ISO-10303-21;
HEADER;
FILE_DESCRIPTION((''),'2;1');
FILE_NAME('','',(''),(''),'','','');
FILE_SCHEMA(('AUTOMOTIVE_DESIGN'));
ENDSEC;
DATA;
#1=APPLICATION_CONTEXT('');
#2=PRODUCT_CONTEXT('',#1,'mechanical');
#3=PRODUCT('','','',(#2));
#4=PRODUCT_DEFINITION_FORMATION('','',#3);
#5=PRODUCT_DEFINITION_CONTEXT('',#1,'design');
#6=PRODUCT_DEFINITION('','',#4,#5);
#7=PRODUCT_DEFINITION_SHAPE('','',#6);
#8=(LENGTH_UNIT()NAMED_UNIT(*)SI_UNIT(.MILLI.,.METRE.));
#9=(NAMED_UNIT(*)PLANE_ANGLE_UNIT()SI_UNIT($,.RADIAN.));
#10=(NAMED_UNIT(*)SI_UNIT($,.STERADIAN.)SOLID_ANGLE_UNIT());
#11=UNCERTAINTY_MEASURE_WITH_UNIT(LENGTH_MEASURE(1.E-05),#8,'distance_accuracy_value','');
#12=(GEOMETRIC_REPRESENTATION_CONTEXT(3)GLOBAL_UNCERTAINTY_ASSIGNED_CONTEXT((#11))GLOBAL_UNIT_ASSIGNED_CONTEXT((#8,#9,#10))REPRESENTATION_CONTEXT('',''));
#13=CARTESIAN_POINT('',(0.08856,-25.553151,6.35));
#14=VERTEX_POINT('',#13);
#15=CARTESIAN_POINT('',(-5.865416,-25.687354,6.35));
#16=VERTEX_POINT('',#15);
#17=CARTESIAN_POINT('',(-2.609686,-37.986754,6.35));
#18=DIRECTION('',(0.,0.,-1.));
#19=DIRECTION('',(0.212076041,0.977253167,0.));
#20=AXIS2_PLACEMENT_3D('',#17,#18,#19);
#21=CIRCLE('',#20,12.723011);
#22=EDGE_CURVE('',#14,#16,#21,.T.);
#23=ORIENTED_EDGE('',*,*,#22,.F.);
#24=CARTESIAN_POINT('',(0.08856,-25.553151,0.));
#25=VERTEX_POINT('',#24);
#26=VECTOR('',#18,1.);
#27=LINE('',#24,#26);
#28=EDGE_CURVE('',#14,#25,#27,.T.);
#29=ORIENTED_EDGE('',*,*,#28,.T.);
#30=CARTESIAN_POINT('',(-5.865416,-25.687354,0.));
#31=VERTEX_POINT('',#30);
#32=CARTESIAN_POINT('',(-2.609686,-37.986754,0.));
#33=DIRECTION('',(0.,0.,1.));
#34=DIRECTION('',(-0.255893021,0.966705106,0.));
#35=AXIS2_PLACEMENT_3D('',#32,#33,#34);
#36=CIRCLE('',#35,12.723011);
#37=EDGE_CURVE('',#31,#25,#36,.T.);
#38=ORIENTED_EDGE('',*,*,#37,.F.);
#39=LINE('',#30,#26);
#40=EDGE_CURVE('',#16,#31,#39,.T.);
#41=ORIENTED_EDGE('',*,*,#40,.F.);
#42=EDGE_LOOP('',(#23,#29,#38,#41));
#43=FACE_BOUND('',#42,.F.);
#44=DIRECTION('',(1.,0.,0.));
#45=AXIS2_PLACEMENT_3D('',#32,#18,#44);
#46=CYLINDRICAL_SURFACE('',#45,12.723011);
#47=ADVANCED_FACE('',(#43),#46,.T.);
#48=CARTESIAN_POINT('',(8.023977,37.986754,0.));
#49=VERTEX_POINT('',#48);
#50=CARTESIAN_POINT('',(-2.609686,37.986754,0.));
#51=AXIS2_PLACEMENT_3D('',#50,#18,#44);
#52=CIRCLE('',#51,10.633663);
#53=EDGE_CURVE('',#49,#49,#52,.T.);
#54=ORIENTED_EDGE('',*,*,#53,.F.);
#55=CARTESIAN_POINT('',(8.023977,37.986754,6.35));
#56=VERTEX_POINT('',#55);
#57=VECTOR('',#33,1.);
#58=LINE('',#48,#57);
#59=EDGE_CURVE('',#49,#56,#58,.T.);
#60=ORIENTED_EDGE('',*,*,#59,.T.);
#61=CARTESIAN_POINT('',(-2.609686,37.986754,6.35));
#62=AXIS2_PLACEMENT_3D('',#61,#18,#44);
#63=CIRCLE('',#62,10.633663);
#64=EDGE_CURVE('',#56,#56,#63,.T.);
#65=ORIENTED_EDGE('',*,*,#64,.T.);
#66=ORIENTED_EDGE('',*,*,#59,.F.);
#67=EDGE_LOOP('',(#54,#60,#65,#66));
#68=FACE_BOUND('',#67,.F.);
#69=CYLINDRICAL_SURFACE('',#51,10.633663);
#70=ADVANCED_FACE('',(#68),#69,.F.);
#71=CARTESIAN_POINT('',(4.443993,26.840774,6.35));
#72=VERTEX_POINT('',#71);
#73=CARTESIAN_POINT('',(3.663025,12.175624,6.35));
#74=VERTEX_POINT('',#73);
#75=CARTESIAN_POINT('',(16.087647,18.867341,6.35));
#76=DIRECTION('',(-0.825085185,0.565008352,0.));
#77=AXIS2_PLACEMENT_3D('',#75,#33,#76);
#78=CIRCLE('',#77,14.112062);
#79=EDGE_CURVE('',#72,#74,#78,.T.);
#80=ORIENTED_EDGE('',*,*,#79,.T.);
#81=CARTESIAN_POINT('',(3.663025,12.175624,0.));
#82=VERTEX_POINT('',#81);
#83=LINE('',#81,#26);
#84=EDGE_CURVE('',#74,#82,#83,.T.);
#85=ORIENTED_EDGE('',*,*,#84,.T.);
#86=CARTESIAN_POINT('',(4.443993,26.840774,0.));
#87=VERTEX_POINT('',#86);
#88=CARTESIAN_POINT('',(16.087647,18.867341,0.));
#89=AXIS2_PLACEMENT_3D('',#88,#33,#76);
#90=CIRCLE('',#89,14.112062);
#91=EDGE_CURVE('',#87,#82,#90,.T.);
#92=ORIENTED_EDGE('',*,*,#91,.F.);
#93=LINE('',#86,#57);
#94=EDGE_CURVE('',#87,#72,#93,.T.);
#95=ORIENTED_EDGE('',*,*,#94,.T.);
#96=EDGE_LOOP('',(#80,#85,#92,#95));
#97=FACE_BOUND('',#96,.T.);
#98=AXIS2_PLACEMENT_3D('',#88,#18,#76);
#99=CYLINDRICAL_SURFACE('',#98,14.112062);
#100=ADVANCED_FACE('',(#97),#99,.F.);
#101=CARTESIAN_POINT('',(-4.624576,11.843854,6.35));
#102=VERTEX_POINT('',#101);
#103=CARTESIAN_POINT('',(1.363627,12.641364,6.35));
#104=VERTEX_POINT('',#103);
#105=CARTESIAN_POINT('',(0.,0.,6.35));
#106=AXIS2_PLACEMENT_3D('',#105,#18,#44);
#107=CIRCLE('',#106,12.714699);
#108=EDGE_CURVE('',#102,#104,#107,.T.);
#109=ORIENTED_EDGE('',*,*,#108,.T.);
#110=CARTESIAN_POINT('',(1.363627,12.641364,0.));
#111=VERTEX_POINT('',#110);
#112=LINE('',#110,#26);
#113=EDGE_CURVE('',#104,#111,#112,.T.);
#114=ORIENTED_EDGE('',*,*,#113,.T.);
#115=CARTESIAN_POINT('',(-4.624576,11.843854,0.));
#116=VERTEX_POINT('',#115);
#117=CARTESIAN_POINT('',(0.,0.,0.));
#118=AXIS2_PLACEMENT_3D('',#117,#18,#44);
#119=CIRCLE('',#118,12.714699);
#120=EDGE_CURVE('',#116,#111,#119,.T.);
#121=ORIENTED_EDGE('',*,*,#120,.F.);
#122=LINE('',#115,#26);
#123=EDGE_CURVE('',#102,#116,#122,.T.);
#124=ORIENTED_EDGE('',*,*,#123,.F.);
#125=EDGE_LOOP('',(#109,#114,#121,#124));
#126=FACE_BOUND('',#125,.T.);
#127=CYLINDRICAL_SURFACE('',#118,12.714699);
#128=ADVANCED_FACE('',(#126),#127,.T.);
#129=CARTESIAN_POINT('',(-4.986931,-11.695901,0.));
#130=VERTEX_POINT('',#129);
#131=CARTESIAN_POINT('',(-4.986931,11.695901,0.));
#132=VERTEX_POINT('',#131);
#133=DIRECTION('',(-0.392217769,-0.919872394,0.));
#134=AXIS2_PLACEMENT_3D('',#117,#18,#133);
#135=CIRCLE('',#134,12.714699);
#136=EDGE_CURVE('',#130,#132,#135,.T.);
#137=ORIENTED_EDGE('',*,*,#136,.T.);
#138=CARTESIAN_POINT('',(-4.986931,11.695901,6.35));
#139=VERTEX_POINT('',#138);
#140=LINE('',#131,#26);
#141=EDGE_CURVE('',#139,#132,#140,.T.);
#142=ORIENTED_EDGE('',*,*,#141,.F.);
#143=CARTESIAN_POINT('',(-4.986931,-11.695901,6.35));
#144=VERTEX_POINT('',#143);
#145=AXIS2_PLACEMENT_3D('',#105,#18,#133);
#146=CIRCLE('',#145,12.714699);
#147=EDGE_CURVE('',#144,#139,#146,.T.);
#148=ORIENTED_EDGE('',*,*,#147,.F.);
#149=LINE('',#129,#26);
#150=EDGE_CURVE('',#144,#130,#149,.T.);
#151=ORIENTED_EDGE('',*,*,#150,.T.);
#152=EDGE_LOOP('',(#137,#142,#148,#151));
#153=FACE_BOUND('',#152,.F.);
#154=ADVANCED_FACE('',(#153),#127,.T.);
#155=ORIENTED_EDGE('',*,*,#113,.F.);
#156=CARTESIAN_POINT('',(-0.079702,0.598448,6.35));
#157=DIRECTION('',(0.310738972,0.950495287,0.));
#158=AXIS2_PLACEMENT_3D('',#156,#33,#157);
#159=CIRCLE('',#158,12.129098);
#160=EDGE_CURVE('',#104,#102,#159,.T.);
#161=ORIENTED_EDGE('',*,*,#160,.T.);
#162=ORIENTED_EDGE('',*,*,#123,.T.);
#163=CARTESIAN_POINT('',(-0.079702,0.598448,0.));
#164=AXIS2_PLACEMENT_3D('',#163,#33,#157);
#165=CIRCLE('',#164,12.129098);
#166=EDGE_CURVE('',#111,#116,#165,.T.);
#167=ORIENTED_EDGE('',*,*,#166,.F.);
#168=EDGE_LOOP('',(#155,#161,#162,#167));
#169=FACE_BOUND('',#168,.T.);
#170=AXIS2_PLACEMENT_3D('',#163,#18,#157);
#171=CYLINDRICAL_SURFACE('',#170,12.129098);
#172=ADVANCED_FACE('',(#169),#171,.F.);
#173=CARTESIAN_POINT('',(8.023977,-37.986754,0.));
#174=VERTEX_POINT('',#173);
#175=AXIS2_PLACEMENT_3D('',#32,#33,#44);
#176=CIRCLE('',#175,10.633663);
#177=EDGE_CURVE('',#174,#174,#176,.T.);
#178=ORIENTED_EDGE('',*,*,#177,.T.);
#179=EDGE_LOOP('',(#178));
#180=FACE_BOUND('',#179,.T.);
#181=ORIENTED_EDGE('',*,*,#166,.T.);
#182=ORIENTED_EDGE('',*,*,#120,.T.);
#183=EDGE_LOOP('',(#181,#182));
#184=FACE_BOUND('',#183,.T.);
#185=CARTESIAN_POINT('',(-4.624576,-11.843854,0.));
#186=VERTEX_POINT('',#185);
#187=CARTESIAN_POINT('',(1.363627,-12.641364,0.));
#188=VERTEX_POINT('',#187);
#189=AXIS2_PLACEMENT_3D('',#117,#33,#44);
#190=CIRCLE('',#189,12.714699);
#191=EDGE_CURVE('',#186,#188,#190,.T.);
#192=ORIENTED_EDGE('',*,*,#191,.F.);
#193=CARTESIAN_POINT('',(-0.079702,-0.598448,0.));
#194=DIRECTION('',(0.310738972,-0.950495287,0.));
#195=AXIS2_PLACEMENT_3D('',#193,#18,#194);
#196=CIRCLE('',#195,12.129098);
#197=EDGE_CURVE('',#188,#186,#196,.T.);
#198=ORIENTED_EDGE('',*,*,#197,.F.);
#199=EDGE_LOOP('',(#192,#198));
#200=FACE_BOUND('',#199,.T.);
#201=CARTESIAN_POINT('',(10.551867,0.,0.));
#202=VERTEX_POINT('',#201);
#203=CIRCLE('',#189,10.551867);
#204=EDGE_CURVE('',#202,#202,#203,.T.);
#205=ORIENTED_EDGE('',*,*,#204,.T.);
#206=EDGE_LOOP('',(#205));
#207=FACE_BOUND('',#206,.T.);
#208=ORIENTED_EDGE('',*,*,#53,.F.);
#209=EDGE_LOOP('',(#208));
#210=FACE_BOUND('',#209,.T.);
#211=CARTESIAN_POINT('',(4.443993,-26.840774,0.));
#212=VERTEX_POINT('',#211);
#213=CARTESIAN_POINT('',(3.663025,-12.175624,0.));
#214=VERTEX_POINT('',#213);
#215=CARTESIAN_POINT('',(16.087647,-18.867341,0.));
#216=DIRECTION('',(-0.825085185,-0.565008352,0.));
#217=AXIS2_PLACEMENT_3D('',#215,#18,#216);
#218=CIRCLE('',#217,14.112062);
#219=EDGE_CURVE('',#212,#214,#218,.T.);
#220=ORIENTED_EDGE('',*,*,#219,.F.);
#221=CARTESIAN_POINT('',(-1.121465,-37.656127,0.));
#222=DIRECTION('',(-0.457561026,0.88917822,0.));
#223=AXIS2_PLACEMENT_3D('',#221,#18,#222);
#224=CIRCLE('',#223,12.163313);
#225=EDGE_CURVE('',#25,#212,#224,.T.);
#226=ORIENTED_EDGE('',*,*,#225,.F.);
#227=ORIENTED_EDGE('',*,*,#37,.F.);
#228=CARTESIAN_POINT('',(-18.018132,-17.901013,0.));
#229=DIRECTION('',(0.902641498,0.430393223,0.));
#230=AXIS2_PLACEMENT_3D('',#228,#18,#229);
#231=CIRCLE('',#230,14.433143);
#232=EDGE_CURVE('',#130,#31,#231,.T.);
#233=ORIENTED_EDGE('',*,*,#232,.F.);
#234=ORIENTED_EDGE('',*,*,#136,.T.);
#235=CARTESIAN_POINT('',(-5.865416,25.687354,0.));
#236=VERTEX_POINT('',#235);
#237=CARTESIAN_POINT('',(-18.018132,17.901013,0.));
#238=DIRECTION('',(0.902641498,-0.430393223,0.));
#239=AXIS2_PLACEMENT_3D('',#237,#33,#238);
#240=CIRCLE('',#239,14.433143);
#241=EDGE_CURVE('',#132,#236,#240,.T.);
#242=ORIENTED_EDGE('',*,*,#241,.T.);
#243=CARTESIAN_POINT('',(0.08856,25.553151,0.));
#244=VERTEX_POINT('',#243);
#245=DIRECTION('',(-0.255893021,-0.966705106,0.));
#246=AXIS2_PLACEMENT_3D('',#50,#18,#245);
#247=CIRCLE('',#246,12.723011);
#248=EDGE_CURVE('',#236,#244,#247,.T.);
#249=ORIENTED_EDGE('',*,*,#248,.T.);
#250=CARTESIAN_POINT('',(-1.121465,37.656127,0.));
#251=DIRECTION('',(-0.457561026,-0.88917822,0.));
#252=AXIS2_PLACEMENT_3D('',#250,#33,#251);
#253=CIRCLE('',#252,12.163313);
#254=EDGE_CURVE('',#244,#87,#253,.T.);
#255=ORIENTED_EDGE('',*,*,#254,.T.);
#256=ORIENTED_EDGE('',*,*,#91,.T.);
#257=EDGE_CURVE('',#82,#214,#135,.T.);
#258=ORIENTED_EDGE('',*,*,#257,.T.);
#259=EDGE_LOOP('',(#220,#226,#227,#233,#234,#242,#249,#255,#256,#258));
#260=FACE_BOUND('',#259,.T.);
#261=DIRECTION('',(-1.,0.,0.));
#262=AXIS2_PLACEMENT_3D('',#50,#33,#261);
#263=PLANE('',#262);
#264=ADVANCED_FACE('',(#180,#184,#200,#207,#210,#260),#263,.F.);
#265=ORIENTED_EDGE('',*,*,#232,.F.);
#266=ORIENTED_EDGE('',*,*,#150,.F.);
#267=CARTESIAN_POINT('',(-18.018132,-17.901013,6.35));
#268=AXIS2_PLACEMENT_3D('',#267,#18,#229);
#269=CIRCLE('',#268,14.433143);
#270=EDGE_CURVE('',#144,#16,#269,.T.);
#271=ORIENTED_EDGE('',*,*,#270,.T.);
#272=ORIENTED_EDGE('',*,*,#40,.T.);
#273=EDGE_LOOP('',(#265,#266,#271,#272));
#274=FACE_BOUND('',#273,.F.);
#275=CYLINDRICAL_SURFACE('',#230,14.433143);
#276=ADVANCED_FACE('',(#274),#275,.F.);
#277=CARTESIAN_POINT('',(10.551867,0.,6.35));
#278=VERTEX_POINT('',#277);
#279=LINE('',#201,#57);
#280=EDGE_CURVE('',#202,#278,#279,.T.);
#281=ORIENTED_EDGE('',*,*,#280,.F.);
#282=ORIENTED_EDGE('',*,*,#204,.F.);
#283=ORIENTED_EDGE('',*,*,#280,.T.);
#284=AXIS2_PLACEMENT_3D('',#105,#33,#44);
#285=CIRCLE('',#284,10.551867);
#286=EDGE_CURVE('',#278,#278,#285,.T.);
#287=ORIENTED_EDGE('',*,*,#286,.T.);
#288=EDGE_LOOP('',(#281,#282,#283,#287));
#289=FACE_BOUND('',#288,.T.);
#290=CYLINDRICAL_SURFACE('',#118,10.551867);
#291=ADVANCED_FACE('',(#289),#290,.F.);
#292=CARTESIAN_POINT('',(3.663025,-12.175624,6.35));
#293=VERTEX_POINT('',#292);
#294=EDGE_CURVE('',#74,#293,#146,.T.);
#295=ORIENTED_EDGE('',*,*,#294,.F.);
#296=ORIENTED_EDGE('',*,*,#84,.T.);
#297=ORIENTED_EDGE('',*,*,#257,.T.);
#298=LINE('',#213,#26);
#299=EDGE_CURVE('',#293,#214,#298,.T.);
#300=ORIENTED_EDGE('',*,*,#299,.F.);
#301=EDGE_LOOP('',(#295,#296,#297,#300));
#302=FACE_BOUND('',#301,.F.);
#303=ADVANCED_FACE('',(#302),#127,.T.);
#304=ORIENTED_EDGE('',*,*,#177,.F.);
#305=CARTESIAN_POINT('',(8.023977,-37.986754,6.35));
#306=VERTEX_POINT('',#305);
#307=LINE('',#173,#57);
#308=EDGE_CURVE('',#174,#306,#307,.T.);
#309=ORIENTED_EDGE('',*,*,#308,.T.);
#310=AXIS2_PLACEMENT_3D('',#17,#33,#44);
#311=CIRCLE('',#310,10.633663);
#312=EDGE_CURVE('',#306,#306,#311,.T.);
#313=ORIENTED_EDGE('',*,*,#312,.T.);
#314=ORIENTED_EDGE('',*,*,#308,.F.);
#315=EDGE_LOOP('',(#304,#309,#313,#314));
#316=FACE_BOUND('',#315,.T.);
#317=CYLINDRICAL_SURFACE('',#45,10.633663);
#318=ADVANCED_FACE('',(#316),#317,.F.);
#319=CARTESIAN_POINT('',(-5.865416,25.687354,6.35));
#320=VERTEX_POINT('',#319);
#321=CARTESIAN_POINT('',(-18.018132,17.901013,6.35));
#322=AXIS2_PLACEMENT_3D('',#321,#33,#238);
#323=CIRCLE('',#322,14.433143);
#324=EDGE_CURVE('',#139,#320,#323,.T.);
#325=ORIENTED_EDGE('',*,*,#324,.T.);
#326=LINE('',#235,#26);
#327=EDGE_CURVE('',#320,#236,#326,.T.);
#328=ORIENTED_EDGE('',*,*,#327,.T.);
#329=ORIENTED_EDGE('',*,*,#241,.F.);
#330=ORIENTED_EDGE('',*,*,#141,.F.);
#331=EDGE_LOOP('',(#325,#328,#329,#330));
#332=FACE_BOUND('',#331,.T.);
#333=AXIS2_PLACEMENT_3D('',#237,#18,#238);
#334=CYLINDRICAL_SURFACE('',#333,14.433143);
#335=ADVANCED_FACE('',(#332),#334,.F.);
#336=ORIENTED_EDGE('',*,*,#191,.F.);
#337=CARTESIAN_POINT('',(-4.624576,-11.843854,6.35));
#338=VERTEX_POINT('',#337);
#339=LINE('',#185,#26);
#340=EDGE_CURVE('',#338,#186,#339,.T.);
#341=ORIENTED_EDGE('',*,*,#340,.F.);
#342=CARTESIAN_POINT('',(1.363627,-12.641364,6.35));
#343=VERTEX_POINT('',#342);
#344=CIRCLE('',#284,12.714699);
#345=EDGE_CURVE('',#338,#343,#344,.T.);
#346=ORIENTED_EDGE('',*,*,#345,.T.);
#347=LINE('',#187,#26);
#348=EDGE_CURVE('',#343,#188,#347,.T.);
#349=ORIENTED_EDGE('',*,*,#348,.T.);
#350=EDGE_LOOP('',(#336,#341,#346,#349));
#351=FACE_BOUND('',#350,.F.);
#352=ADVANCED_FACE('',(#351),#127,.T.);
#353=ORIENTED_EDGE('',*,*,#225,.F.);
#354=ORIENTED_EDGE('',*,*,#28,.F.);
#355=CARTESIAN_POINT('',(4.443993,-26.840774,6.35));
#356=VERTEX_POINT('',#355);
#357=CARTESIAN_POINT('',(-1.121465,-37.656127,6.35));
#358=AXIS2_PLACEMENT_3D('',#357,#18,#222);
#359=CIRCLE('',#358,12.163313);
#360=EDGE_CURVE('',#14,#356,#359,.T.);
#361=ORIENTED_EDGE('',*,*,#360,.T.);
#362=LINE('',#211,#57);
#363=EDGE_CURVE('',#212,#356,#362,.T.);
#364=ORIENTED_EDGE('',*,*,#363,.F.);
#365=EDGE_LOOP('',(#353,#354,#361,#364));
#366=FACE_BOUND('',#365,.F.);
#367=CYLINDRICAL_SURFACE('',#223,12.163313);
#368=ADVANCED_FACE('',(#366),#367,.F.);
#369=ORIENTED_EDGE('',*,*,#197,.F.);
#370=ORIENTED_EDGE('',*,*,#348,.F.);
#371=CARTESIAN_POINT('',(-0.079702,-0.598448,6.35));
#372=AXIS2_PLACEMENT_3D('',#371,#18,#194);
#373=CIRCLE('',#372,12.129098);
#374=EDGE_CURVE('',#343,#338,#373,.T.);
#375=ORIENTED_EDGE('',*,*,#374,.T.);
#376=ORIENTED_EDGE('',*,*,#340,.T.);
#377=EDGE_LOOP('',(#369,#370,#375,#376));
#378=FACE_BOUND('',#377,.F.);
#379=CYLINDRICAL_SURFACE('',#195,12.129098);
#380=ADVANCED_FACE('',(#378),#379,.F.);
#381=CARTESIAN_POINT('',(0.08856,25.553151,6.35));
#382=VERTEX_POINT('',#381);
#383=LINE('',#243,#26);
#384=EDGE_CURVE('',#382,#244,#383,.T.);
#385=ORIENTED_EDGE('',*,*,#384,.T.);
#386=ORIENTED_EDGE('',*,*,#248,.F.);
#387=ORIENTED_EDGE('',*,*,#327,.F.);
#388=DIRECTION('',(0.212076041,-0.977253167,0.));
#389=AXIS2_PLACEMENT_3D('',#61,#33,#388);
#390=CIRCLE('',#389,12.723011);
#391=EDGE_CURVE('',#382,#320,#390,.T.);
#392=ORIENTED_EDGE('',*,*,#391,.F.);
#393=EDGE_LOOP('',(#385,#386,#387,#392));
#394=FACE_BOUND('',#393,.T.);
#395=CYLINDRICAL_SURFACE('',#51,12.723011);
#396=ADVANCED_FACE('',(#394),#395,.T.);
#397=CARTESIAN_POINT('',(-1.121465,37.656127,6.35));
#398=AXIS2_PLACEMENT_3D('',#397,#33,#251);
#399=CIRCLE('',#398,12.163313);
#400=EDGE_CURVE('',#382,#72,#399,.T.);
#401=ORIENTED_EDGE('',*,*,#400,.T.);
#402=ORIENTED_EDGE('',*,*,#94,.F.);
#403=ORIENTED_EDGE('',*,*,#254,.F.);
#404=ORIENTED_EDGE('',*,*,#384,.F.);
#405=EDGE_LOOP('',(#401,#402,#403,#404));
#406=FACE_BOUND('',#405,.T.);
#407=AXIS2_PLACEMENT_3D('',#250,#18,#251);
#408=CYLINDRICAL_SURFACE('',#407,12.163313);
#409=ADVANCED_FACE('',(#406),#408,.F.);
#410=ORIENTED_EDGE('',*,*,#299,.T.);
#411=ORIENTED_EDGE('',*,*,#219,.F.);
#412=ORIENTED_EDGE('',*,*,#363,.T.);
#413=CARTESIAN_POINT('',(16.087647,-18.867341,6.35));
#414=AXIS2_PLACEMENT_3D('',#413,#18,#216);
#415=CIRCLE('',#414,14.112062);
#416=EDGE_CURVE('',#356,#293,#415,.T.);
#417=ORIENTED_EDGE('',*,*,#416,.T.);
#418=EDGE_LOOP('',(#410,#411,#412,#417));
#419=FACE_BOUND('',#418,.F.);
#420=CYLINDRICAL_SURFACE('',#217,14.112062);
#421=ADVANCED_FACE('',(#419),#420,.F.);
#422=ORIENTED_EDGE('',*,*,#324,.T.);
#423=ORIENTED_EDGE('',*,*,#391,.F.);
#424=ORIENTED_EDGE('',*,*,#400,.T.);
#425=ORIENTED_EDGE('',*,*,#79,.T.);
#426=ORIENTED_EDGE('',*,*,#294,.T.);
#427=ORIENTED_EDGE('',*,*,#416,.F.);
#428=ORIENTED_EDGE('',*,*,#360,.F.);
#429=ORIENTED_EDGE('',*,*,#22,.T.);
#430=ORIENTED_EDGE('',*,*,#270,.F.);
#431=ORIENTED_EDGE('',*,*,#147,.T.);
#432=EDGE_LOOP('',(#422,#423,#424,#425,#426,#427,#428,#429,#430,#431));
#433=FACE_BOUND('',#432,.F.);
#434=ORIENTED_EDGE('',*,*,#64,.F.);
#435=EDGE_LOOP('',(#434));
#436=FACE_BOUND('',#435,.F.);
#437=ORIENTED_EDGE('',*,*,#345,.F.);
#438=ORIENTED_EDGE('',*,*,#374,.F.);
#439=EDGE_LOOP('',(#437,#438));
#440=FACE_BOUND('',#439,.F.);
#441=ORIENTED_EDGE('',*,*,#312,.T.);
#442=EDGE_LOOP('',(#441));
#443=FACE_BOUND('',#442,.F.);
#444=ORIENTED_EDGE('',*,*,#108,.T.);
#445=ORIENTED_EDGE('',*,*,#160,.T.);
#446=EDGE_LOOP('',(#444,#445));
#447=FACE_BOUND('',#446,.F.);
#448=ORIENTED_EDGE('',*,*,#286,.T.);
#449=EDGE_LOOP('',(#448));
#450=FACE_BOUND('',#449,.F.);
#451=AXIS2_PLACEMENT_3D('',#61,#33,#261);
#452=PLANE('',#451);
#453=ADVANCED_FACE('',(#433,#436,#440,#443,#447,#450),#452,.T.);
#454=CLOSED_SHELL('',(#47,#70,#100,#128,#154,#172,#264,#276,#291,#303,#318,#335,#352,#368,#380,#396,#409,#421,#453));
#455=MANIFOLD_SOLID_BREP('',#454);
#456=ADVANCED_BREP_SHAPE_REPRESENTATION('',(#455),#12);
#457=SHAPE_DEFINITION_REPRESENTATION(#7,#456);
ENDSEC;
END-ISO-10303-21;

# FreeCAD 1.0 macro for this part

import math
import FreeCAD as App
import Part
import Sketcher
from FreeCAD import Vector

doc = App.newDocument("Part")
params = doc.addObject("Spreadsheet::Sheet", "Params")
for row, (alias, value) in enumerate([
    ("pad1_length", "0.25 in"),
    ("pad2_length", "0.25 in"),
    ("pad3_length", "0.25 in"),
], start=1):
    params.set(f"A{row}", alias)
    params.set(f"B{row}", "=" + value)
    params.setAlias(f"B{row}", alias)

body = doc.addObject("PartDesign::Body", "Body")

sketch1 = body.newObject("Sketcher::SketchObject", "Sketch")
sketch1.AttachmentSupport = (doc.getObject("XY_Plane"), [""])
sketch1.MapMode = "FlatFace"
sketch1.addGeometry(Part.Circle(Vector(0, 0, 0), Vector(0, 0, 1), 13), False)
sketch1.addGeometry(Part.Circle(Vector(0, 0, 0), Vector(0, 0, 1), 11), False)
sketch1.addConstraint(Sketcher.Constraint("Coincident", 0, 3, -1, 1))
sketch1.addConstraint(Sketcher.Constraint("Coincident", 1, 3, -1, 1))
sketch1.addConstraint(Sketcher.Constraint("Diameter", 0, 25.429398))
sketch1.addConstraint(Sketcher.Constraint("Diameter", 1, 21.103734))
pad1 = body.newObject("PartDesign::Pad", "Pad")
pad1.Profile = sketch1
pad1.setExpression("Length", "Params.pad1_length")

sketch2 = body.newObject("Sketcher::SketchObject", "Sketch001")
sketch2.AttachmentSupport = (doc.getObject("XY_Plane"), [""])
sketch2.MapMode = "FlatFace"
sketch2.addGeometry(Part.ArcOfCircle(Part.Circle(Vector(16, -19, 0), Vector(0, 0, 1), 14), math.radians(151), math.radians(214)), False)
sketch2.addGeometry(Part.ArcOfCircle(Part.Circle(Vector(0, -1, 0), Vector(0, 0, 1), 12), math.radians(-114), math.radians(-72)), False)
sketch2.addGeometry(Part.ArcOfCircle(Part.Circle(Vector(-18, -18, 0), Vector(0, 0, 1), 14), math.radians(-38), math.radians(25)), False)
sketch2.addGeometry(Part.ArcOfCircle(Part.Circle(Vector(-1, -38, 0), Vector(0, 0, 1), 12), math.radians(63), math.radians(117)), False)
sketch2.addConstraint(Sketcher.Constraint("Coincident", 0, 1, 1, 2))
sketch2.addConstraint(Sketcher.Constraint("Coincident", 1, 1, 2, 2))
sketch2.addConstraint(Sketcher.Constraint("Coincident", 2, 1, 3, 2))
sketch2.addConstraint(Sketcher.Constraint("Coincident", 3, 1, 0, 2))
sketch2.addConstraint(Sketcher.Constraint("Horizontal", 2, 1, 3, 1))
sketch2.addConstraint(Sketcher.Constraint("Radius", 1, 12.129098))
sketch2.addConstraint(Sketcher.Constraint("Radius", 0, 14.112062))
sketch2.addConstraint(Sketcher.Constraint("Radius", 2, 14.433143))
sketch2.addConstraint(Sketcher.Constraint("Radius", 3, 12.163313))
sketch2.addConstraint(Sketcher.Constraint("DistanceX", 1, 3, -1, 1, 0.079702))
sketch2.addConstraint(Sketcher.Constraint("DistanceY", 0, 1, -1, 1, 12.127099))
sketch2.addConstraint(Sketcher.Constraint("DistanceY", 0, 3, -1, 1, 18.867341))
sketch2.addConstraint(Sketcher.Constraint("DistanceY", 1, 3, -1, 1, 0.598448))
sketch2.addConstraint(Sketcher.Constraint("DistanceX", 1, 1, -1, 1, 4.990178))
sketch2.addConstraint(Sketcher.Constraint("DistanceX", 2, 3, 1, 3, 17.938431))
sketch2.addConstraint(Sketcher.Constraint("DistanceX", 3, 3, 0, 3, 17.209112))
pad2 = body.newObject("PartDesign::Pad", "Pad001")
pad2.Profile = sketch2
pad2.setExpression("Length", "Params.pad2_length")

sketch3 = body.newObject("Sketcher::SketchObject", "Sketch002")
sketch3.AttachmentSupport = (doc.getObject("XY_Plane"), [""])
sketch3.MapMode = "FlatFace"
sketch3.addGeometry(Part.Circle(Vector(-3, -38, 0), Vector(0, 0, 1), 13), False)
sketch3.addGeometry(Part.Circle(Vector(-3, -38, 0), Vector(0, 0, 1), 11), False)
sketch3.addConstraint(Sketcher.Constraint("Coincident", 1, 3, 0, 3))
sketch3.addConstraint(Sketcher.Constraint("Diameter", 0, 25.446022))
sketch3.addConstraint(Sketcher.Constraint("Diameter", 1, 21.267326))
sketch3.addConstraint(Sketcher.Constraint("DistanceX", 0, 3, -1, 1, 2.609686))
sketch3.addConstraint(Sketcher.Constraint("DistanceY", 0, 3, -1, 1, 37.986754))
pad3 = body.newObject("PartDesign::Pad", "Pad002")
pad3.Profile = sketch3
pad3.setExpression("Length", "Params.pad3_length")
body2 = doc.addObject("PartDesign::Body", "Body001")
doc.recompute()

body2.BaseFeature = body
doc.recompute()

mirroring = doc.addObject("Part::Mirroring", "Mirroring")
mirroring.Source = body
mirroring.Base = Vector(0, 0, 0)
mirroring.Normal = Vector(0, -1, 0)
body3 = doc.addObject("PartDesign::Body", "Body002")
body3.BaseFeature = mirroring
boolean = body2.newObject("PartDesign::Boolean", "Boolean")
boolean.Type = "Fuse"
boolean.addObjects([body3])
doc.recompute()
mirroring.Visibility = False

doc.recompute()
